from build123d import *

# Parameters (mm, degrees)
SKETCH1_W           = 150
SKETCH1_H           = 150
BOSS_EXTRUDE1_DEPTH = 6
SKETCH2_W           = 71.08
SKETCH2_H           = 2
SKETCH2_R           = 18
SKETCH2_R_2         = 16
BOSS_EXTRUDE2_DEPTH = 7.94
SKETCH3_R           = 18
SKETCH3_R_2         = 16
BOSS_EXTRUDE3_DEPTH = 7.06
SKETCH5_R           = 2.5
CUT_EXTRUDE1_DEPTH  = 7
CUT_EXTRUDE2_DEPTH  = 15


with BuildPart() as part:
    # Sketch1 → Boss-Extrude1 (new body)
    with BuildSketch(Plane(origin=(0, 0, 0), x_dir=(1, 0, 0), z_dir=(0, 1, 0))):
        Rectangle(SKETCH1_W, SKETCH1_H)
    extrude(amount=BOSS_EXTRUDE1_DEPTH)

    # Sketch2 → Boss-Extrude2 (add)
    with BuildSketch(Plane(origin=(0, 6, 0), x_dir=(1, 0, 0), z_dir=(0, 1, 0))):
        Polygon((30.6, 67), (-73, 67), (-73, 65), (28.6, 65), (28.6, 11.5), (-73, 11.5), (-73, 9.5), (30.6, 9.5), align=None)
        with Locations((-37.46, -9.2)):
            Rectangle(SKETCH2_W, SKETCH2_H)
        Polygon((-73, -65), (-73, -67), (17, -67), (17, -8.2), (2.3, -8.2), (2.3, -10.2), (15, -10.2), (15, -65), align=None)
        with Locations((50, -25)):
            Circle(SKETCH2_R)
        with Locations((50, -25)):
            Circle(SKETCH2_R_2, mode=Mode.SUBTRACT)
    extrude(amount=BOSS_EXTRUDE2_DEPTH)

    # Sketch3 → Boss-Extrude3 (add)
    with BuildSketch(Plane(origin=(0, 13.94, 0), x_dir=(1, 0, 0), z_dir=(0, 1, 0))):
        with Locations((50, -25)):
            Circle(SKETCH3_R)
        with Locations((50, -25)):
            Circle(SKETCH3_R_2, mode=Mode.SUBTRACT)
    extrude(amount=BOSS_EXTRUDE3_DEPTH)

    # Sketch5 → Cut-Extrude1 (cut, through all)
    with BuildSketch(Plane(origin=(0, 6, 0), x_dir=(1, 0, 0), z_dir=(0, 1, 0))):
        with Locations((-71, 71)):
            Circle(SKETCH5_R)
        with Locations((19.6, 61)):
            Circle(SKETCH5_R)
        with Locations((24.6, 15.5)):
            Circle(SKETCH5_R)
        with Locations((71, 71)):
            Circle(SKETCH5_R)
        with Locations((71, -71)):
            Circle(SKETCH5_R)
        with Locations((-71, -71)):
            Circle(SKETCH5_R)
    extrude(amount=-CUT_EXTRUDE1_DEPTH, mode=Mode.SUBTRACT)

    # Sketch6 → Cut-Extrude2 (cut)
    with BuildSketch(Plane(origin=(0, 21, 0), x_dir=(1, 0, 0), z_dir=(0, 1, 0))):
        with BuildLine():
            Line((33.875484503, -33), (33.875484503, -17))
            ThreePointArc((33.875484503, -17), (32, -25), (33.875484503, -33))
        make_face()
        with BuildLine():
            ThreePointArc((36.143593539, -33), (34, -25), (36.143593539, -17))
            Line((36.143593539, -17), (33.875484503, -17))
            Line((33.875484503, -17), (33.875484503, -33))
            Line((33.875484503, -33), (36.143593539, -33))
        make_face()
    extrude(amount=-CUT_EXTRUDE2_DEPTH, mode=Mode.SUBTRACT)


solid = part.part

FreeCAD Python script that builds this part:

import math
import FreeCAD as App
import Part
import Sketcher

V = App.Vector


def add_polygon(sketch, points):
    """Adds a closed chain of lines whose ends are joined by coincident constraints."""
    first, n = sketch.GeometryCount, len(points)
    for a, b in zip(points, points[1:] + points[:1]):
        sketch.addGeometry(Part.LineSegment(App.Vector(*a, 0), App.Vector(*b, 0)), False)
    for i in range(n):
        sketch.addConstraint(Sketcher.Constraint("Coincident", first + i, 2, first + (i + 1) % n, 1))

doc = App.newDocument("Part")
params = doc.addObject("Spreadsheet::Sheet", "Params")
for row, (alias, value) in enumerate([
    ("sketch1_width", "150 mm"),
    ("pad1_length", "6 mm"),
    ("sketch2_diameter", "36 mm"),
    ("sketch2_diameter2", "32 mm"),
    ("sketch2_width", "90 mm"),
    ("sketch2_width2", "88 mm"),
    ("sketch2_height", "2 mm"),
    ("pad2_length", "7.94 mm"),
    ("sketch3_diameter", "36 mm"),
    ("sketch3_diameter2", "32 mm"),
    ("pad3_length", "7.06 mm"),
    ("sketch4_diameter", "5 mm"),
    ("sketch5_radius", "18 mm"),
    ("sketch5_radius2", "16 mm"),
    ("pocket2_length", "15 mm"),
], start=1):
    params.set(f"A{row}", alias)
    params.set(f"B{row}", "=" + value)
    params.setAlias(f"B{row}", alias)

body = doc.addObject("PartDesign::Body", "Body")

# Sketch on XZ plane
sketch1 = body.newObject("Sketcher::SketchObject", "Sketch")
sketch1.AttachmentSupport = (doc.getObject("XZ_Plane"), [""])
sketch1.MapMode = "FlatFace"
add_polygon(sketch1, [(-75, -75), (-75, 75), (75, 75), (75, -75)])  # lines 0-3
sketch1.addConstraint(Sketcher.Constraint("Vertical", 0))
sketch1.addConstraint(Sketcher.Constraint("Horizontal", 1))
sketch1.addConstraint(Sketcher.Constraint("Vertical", 2))
sketch1.addConstraint(Sketcher.Constraint("Horizontal", 3))
sketch1.addConstraint(Sketcher.Constraint("Symmetric", 0, 2, 2, 2, -1, 1))
sketch1.addConstraint(Sketcher.Constraint("Equal", 3, 0))
sketch1.addConstraint(Sketcher.Constraint("DistanceX", 1, 1, 1, 2, 150.0))
sketch1.setExpression("Constraints[10]", "Params.sketch1_width")
pad1 = body.newObject("PartDesign::Pad", "Pad")
pad1.Profile = sketch1
pad1.setExpression("Length", "Params.pad1_length")
pad1.Reversed = True

# Sketch on XZ plane
sketch2 = body.newObject("Sketcher::SketchObject", "Sketch001")
sketch2.AttachmentSupport = (doc.getObject("XZ_Plane"), [""])
sketch2.MapMode = "FlatFace"
sketch2.AttachmentOffset = App.Placement(V(0, 0, -6), App.Rotation())
add_polygon(sketch2, [(30.6, -67), (-73, -67), (-73, -65), (28.6, -65), (28.6, -11.5), (-73, -11.5), (-73, -9.5), (30.6, -9.5)])  # lines 0-7
add_polygon(sketch2, [(-73, 8.2), (-73, 10.2), (-1.92, 10.2), (-1.92, 8.2)])  # lines 8-11
add_polygon(sketch2, [(-73, 65), (-73, 67), (17, 67), (17, 8.2), (2.3, 8.2), (2.3, 10.2), (15, 10.2), (15, 65)])  # lines 12-19
sketch2.addGeometry(Part.Circle(V(50, 25, 0), V(0, 0, 1), 18), False)  # 20
sketch2.addGeometry(Part.Circle(V(50, 25, 0), V(0, 0, 1), 16), False)  # 21
sketch2.addConstraint(Sketcher.Constraint("Horizontal", 0))
sketch2.addConstraint(Sketcher.Constraint("Vertical", 1))
sketch2.addConstraint(Sketcher.Constraint("Horizontal", 2))
sketch2.addConstraint(Sketcher.Constraint("Vertical", 3))
sketch2.addConstraint(Sketcher.Constraint("Horizontal", 4))
sketch2.addConstraint(Sketcher.Constraint("Vertical", 5))
sketch2.addConstraint(Sketcher.Constraint("Horizontal", 6))
sketch2.addConstraint(Sketcher.Constraint("Vertical", 7))
sketch2.addConstraint(Sketcher.Constraint("Vertical", 8))
sketch2.addConstraint(Sketcher.Constraint("Horizontal", 9))
sketch2.addConstraint(Sketcher.Constraint("Vertical", 10))
sketch2.addConstraint(Sketcher.Constraint("Horizontal", 11))
sketch2.addConstraint(Sketcher.Constraint("Vertical", 12))
sketch2.addConstraint(Sketcher.Constraint("Horizontal", 13))
sketch2.addConstraint(Sketcher.Constraint("Vertical", 14))
sketch2.addConstraint(Sketcher.Constraint("Horizontal", 15))
sketch2.addConstraint(Sketcher.Constraint("Vertical", 16))
sketch2.addConstraint(Sketcher.Constraint("Horizontal", 17))
sketch2.addConstraint(Sketcher.Constraint("Vertical", 18))
sketch2.addConstraint(Sketcher.Constraint("Horizontal", 19))
sketch2.addConstraint(Sketcher.Constraint("Coincident", 21, 3, 20, 3))
sketch2.addConstraint(Sketcher.Constraint("Symmetric", 0, 2, 12, 2, -1))
sketch2.addConstraint(Sketcher.Constraint("Horizontal", 11, 2, 14, 2))
sketch2.addConstraint(Sketcher.Constraint("Horizontal", 9, 2, 16, 2))
sketch2.addConstraint(Sketcher.Constraint("Vertical", 1, 2, 4, 2))
sketch2.addConstraint(Sketcher.Constraint("Vertical", 5, 2, 8, 2))
sketch2.addConstraint(Sketcher.Constraint("Equal", 1, 5))
sketch2.addConstraint(Sketcher.Constraint("Equal", 5, 8))
sketch2.addConstraint(Sketcher.Constraint("Equal", 10, 12))
sketch2.addConstraint(Sketcher.Constraint("Diameter", 20, 36.0))
sketch2.addConstraint(Sketcher.Constraint("Diameter", 21, 32.0))
sketch2.addConstraint(Sketcher.Constraint("DistanceX", 13, 1, 13, 2, 90.0))
sketch2.addConstraint(Sketcher.Constraint("DistanceX", 19, 2, 19, 1, 88.0))
sketch2.addConstraint(Sketcher.Constraint("DistanceY", 1, 1, 1, 2, 2.0))
sketch2.addConstraint(Sketcher.Constraint("DistanceX", 0, 2, 0, 1, 103.6))
sketch2.addConstraint(Sketcher.Constraint("DistanceX", 2, 1, 2, 2, 101.6))
sketch2.addConstraint(Sketcher.Constraint("DistanceX", 15, 2, 15, 1, 14.7))
sketch2.addConstraint(Sketcher.Constraint("DistanceY", 3, 1, 3, 2, 53.5))
sketch2.addConstraint(Sketcher.Constraint("DistanceY", 14, 2, 14, 1, 58.8))
sketch2.addConstraint(Sketcher.Constraint("DistanceX", -1, 1, 20, 3, 50.0))
sketch2.addConstraint(Sketcher.Constraint("DistanceY", -1, 1, 20, 3, 25.0))
sketch2.addConstraint(Sketcher.Constraint("DistanceX", 0, 2, -1, 1, 73.0))
sketch2.addConstraint(Sketcher.Constraint("DistanceY", 0, 2, -1, 1, 67.0))
sketch2.addConstraint(Sketcher.Constraint("DistanceX", 9, 1, 9, 2, 71.08))
sketch2.setExpression("Constraints[49]", "Params.sketch2_diameter")
sketch2.setExpression("Constraints[50]", "Params.sketch2_diameter2")
sketch2.setExpression("Constraints[51]", "Params.sketch2_width")
sketch2.setExpression("Constraints[52]", "Params.sketch2_width2")
sketch2.setExpression("Constraints[53]", "Params.sketch2_height")
pad2 = body.newObject("PartDesign::Pad", "Pad001")
pad2.Profile = sketch2
pad2.setExpression("Length", "Params.pad2_length")
pad2.Reversed = True

# Sketch on XZ plane
sketch3 = body.newObject("Sketcher::SketchObject", "Sketch002")
sketch3.AttachmentSupport = (doc.getObject("XZ_Plane"), [""])
sketch3.MapMode = "FlatFace"
sketch3.AttachmentOffset = App.Placement(V(0, 0, -13.94), App.Rotation())
sketch3.addGeometry(Part.Circle(V(50, 25, 0), V(0, 0, 1), 18), False)
sketch3.addGeometry(Part.Circle(V(50, 25, 0), V(0, 0, 1), 16), False)
sketch3.addConstraint(Sketcher.Constraint("Coincident", 1, 3, 0, 3))
sketch3.addConstraint(Sketcher.Constraint("Diameter", 0, 36.0))
sketch3.addConstraint(Sketcher.Constraint("Diameter", 1, 32.0))
sketch3.addConstraint(Sketcher.Constraint("DistanceX", -1, 1, 0, 3, 50.0))
sketch3.addConstraint(Sketcher.Constraint("DistanceY", -1, 1, 0, 3, 25.0))
sketch3.setExpression("Constraints[1]", "Params.sketch3_diameter")
sketch3.setExpression("Constraints[2]", "Params.sketch3_diameter2")
pad3 = body.newObject("PartDesign::Pad", "Pad002")
pad3.Profile = sketch3
pad3.setExpression("Length", "Params.pad3_length")
pad3.Reversed = True

# Sketch on XZ plane
sketch4 = body.newObject("Sketcher::SketchObject", "Sketch003")
sketch4.AttachmentSupport = (doc.getObject("XZ_Plane"), [""])
sketch4.MapMode = "FlatFace"
sketch4.AttachmentOffset = App.Placement(V(0, 0, -6), App.Rotation())
sketch4.addGeometry(Part.Circle(V(-71, -71, 0), V(0, 0, 1), 2.5), False)
sketch4.addGeometry(Part.Circle(V(19.6, -61, 0), V(0, 0, 1), 2.5), False)
sketch4.addGeometry(Part.Circle(V(24.6, -15.5, 0), V(0, 0, 1), 2.5), False)
sketch4.addGeometry(Part.Circle(V(71, -71, 0), V(0, 0, 1), 2.5), False)
sketch4.addGeometry(Part.Circle(V(71, 71, 0), V(0, 0, 1), 2.5), False)
sketch4.addGeometry(Part.Circle(V(-71, 71, 0), V(0, 0, 1), 2.5), False)
sketch4.addConstraint(Sketcher.Constraint("Equal", 0, 1))
sketch4.addConstraint(Sketcher.Constraint("Equal", 1, 2))
sketch4.addConstraint(Sketcher.Constraint("Equal", 2, 3))
sketch4.addConstraint(Sketcher.Constraint("Equal", 3, 4))
sketch4.addConstraint(Sketcher.Constraint("Equal", 4, 5))
sketch4.addConstraint(Sketcher.Constraint("Symmetric", 0, 3, 4, 3, -1, 1))
sketch4.addConstraint(Sketcher.Constraint("Symmetric", 3, 3, 5, 3, -1, 1))
sketch4.addConstraint(Sketcher.Constraint("Symmetric", 0, 3, 3, 3, -2))
sketch4.addConstraint(Sketcher.Constraint("Diameter", 0, 5.0))
sketch4.addConstraint(Sketcher.Constraint("DistanceX", 0, 3, -1, 1, 71.0))
sketch4.addConstraint(Sketcher.Constraint("DistanceY", 0, 3, -1, 1, 71.0))
sketch4.addConstraint(Sketcher.Constraint("DistanceY", 1, 3, -1, 1, 61.0))
sketch4.addConstraint(Sketcher.Constraint("DistanceX", 1, 3, 2, 3, 5.0))
sketch4.addConstraint(Sketcher.Constraint("DistanceX", -1, 1, 1, 3, 19.6))
sketch4.addConstraint(Sketcher.Constraint("DistanceY", 2, 3, -1, 1, 15.5))
sketch4.setExpression("Constraints[8]", "Params.sketch4_diameter")
pocket1 = body.newObject("PartDesign::Pocket", "Pocket")
pocket1.Profile = sketch4
pocket1.Type = "ThroughAll"
pocket1.Reversed = True

# Sketch on XZ plane
sketch5 = body.newObject("Sketcher::SketchObject", "Sketch004")
sketch5.AttachmentSupport = (doc.getObject("XZ_Plane"), [""])
sketch5.MapMode = "FlatFace"
sketch5.AttachmentOffset = App.Placement(V(0, 0, -21), App.Rotation())
sketch5.addGeometry(Part.ArcOfCircle(Part.Circle(V(50, 25, 0), V(0, 0, 1), 18), math.radians(153.6122), math.radians(206.3878)), False)
sketch5.addGeometry(Part.LineSegment(V(33.875485, 33, 0), V(36.143594, 33, 0)), False)
sketch5.addGeometry(Part.ArcOfCircle(Part.Circle(V(50, 25, 0), V(0, 0, 1), 16), math.radians(150), math.radians(210)), False)
sketch5.addGeometry(Part.LineSegment(V(36.143594, 17, 0), V(33.875485, 17, 0)), False)
sketch5.addConstraint(Sketcher.Constraint("Coincident", 0, 1, 1, 1))
sketch5.addConstraint(Sketcher.Constraint("Coincident", 1, 2, 2, 1))
sketch5.addConstraint(Sketcher.Constraint("Coincident", 2, 2, 3, 1))
sketch5.addConstraint(Sketcher.Constraint("Coincident", 3, 2, 0, 2))
sketch5.addConstraint(Sketcher.Constraint("Horizontal", 1))
sketch5.addConstraint(Sketcher.Constraint("Horizontal", 3))
sketch5.addConstraint(Sketcher.Constraint("Coincident", 2, 3, 0, 3))
sketch5.addConstraint(Sketcher.Constraint("Vertical", 1, 2, 2, 2))
sketch5.addConstraint(Sketcher.Constraint("Radius", 0, 18.0))
sketch5.addConstraint(Sketcher.Constraint("Radius", 2, 16.0))
sketch5.addConstraint(Sketcher.Constraint("DistanceX", -1, 1, 0, 3, 50.0))
sketch5.addConstraint(Sketcher.Constraint("DistanceY", -1, 1, 0, 3, 25.0))
sketch5.addConstraint(Sketcher.Constraint("DistanceY", -1, 1, 0, 1, 33.0))
sketch5.setExpression("Constraints[8]", "Params.sketch5_radius")
sketch5.setExpression("Constraints[9]", "Params.sketch5_radius2")
pocket2 = body.newObject("PartDesign::Pocket", "Pocket001")
pocket2.Profile = sketch5
pocket2.setExpression("Length", "Params.pocket2_length")
pocket2.Reversed = True

doc.recompute()
